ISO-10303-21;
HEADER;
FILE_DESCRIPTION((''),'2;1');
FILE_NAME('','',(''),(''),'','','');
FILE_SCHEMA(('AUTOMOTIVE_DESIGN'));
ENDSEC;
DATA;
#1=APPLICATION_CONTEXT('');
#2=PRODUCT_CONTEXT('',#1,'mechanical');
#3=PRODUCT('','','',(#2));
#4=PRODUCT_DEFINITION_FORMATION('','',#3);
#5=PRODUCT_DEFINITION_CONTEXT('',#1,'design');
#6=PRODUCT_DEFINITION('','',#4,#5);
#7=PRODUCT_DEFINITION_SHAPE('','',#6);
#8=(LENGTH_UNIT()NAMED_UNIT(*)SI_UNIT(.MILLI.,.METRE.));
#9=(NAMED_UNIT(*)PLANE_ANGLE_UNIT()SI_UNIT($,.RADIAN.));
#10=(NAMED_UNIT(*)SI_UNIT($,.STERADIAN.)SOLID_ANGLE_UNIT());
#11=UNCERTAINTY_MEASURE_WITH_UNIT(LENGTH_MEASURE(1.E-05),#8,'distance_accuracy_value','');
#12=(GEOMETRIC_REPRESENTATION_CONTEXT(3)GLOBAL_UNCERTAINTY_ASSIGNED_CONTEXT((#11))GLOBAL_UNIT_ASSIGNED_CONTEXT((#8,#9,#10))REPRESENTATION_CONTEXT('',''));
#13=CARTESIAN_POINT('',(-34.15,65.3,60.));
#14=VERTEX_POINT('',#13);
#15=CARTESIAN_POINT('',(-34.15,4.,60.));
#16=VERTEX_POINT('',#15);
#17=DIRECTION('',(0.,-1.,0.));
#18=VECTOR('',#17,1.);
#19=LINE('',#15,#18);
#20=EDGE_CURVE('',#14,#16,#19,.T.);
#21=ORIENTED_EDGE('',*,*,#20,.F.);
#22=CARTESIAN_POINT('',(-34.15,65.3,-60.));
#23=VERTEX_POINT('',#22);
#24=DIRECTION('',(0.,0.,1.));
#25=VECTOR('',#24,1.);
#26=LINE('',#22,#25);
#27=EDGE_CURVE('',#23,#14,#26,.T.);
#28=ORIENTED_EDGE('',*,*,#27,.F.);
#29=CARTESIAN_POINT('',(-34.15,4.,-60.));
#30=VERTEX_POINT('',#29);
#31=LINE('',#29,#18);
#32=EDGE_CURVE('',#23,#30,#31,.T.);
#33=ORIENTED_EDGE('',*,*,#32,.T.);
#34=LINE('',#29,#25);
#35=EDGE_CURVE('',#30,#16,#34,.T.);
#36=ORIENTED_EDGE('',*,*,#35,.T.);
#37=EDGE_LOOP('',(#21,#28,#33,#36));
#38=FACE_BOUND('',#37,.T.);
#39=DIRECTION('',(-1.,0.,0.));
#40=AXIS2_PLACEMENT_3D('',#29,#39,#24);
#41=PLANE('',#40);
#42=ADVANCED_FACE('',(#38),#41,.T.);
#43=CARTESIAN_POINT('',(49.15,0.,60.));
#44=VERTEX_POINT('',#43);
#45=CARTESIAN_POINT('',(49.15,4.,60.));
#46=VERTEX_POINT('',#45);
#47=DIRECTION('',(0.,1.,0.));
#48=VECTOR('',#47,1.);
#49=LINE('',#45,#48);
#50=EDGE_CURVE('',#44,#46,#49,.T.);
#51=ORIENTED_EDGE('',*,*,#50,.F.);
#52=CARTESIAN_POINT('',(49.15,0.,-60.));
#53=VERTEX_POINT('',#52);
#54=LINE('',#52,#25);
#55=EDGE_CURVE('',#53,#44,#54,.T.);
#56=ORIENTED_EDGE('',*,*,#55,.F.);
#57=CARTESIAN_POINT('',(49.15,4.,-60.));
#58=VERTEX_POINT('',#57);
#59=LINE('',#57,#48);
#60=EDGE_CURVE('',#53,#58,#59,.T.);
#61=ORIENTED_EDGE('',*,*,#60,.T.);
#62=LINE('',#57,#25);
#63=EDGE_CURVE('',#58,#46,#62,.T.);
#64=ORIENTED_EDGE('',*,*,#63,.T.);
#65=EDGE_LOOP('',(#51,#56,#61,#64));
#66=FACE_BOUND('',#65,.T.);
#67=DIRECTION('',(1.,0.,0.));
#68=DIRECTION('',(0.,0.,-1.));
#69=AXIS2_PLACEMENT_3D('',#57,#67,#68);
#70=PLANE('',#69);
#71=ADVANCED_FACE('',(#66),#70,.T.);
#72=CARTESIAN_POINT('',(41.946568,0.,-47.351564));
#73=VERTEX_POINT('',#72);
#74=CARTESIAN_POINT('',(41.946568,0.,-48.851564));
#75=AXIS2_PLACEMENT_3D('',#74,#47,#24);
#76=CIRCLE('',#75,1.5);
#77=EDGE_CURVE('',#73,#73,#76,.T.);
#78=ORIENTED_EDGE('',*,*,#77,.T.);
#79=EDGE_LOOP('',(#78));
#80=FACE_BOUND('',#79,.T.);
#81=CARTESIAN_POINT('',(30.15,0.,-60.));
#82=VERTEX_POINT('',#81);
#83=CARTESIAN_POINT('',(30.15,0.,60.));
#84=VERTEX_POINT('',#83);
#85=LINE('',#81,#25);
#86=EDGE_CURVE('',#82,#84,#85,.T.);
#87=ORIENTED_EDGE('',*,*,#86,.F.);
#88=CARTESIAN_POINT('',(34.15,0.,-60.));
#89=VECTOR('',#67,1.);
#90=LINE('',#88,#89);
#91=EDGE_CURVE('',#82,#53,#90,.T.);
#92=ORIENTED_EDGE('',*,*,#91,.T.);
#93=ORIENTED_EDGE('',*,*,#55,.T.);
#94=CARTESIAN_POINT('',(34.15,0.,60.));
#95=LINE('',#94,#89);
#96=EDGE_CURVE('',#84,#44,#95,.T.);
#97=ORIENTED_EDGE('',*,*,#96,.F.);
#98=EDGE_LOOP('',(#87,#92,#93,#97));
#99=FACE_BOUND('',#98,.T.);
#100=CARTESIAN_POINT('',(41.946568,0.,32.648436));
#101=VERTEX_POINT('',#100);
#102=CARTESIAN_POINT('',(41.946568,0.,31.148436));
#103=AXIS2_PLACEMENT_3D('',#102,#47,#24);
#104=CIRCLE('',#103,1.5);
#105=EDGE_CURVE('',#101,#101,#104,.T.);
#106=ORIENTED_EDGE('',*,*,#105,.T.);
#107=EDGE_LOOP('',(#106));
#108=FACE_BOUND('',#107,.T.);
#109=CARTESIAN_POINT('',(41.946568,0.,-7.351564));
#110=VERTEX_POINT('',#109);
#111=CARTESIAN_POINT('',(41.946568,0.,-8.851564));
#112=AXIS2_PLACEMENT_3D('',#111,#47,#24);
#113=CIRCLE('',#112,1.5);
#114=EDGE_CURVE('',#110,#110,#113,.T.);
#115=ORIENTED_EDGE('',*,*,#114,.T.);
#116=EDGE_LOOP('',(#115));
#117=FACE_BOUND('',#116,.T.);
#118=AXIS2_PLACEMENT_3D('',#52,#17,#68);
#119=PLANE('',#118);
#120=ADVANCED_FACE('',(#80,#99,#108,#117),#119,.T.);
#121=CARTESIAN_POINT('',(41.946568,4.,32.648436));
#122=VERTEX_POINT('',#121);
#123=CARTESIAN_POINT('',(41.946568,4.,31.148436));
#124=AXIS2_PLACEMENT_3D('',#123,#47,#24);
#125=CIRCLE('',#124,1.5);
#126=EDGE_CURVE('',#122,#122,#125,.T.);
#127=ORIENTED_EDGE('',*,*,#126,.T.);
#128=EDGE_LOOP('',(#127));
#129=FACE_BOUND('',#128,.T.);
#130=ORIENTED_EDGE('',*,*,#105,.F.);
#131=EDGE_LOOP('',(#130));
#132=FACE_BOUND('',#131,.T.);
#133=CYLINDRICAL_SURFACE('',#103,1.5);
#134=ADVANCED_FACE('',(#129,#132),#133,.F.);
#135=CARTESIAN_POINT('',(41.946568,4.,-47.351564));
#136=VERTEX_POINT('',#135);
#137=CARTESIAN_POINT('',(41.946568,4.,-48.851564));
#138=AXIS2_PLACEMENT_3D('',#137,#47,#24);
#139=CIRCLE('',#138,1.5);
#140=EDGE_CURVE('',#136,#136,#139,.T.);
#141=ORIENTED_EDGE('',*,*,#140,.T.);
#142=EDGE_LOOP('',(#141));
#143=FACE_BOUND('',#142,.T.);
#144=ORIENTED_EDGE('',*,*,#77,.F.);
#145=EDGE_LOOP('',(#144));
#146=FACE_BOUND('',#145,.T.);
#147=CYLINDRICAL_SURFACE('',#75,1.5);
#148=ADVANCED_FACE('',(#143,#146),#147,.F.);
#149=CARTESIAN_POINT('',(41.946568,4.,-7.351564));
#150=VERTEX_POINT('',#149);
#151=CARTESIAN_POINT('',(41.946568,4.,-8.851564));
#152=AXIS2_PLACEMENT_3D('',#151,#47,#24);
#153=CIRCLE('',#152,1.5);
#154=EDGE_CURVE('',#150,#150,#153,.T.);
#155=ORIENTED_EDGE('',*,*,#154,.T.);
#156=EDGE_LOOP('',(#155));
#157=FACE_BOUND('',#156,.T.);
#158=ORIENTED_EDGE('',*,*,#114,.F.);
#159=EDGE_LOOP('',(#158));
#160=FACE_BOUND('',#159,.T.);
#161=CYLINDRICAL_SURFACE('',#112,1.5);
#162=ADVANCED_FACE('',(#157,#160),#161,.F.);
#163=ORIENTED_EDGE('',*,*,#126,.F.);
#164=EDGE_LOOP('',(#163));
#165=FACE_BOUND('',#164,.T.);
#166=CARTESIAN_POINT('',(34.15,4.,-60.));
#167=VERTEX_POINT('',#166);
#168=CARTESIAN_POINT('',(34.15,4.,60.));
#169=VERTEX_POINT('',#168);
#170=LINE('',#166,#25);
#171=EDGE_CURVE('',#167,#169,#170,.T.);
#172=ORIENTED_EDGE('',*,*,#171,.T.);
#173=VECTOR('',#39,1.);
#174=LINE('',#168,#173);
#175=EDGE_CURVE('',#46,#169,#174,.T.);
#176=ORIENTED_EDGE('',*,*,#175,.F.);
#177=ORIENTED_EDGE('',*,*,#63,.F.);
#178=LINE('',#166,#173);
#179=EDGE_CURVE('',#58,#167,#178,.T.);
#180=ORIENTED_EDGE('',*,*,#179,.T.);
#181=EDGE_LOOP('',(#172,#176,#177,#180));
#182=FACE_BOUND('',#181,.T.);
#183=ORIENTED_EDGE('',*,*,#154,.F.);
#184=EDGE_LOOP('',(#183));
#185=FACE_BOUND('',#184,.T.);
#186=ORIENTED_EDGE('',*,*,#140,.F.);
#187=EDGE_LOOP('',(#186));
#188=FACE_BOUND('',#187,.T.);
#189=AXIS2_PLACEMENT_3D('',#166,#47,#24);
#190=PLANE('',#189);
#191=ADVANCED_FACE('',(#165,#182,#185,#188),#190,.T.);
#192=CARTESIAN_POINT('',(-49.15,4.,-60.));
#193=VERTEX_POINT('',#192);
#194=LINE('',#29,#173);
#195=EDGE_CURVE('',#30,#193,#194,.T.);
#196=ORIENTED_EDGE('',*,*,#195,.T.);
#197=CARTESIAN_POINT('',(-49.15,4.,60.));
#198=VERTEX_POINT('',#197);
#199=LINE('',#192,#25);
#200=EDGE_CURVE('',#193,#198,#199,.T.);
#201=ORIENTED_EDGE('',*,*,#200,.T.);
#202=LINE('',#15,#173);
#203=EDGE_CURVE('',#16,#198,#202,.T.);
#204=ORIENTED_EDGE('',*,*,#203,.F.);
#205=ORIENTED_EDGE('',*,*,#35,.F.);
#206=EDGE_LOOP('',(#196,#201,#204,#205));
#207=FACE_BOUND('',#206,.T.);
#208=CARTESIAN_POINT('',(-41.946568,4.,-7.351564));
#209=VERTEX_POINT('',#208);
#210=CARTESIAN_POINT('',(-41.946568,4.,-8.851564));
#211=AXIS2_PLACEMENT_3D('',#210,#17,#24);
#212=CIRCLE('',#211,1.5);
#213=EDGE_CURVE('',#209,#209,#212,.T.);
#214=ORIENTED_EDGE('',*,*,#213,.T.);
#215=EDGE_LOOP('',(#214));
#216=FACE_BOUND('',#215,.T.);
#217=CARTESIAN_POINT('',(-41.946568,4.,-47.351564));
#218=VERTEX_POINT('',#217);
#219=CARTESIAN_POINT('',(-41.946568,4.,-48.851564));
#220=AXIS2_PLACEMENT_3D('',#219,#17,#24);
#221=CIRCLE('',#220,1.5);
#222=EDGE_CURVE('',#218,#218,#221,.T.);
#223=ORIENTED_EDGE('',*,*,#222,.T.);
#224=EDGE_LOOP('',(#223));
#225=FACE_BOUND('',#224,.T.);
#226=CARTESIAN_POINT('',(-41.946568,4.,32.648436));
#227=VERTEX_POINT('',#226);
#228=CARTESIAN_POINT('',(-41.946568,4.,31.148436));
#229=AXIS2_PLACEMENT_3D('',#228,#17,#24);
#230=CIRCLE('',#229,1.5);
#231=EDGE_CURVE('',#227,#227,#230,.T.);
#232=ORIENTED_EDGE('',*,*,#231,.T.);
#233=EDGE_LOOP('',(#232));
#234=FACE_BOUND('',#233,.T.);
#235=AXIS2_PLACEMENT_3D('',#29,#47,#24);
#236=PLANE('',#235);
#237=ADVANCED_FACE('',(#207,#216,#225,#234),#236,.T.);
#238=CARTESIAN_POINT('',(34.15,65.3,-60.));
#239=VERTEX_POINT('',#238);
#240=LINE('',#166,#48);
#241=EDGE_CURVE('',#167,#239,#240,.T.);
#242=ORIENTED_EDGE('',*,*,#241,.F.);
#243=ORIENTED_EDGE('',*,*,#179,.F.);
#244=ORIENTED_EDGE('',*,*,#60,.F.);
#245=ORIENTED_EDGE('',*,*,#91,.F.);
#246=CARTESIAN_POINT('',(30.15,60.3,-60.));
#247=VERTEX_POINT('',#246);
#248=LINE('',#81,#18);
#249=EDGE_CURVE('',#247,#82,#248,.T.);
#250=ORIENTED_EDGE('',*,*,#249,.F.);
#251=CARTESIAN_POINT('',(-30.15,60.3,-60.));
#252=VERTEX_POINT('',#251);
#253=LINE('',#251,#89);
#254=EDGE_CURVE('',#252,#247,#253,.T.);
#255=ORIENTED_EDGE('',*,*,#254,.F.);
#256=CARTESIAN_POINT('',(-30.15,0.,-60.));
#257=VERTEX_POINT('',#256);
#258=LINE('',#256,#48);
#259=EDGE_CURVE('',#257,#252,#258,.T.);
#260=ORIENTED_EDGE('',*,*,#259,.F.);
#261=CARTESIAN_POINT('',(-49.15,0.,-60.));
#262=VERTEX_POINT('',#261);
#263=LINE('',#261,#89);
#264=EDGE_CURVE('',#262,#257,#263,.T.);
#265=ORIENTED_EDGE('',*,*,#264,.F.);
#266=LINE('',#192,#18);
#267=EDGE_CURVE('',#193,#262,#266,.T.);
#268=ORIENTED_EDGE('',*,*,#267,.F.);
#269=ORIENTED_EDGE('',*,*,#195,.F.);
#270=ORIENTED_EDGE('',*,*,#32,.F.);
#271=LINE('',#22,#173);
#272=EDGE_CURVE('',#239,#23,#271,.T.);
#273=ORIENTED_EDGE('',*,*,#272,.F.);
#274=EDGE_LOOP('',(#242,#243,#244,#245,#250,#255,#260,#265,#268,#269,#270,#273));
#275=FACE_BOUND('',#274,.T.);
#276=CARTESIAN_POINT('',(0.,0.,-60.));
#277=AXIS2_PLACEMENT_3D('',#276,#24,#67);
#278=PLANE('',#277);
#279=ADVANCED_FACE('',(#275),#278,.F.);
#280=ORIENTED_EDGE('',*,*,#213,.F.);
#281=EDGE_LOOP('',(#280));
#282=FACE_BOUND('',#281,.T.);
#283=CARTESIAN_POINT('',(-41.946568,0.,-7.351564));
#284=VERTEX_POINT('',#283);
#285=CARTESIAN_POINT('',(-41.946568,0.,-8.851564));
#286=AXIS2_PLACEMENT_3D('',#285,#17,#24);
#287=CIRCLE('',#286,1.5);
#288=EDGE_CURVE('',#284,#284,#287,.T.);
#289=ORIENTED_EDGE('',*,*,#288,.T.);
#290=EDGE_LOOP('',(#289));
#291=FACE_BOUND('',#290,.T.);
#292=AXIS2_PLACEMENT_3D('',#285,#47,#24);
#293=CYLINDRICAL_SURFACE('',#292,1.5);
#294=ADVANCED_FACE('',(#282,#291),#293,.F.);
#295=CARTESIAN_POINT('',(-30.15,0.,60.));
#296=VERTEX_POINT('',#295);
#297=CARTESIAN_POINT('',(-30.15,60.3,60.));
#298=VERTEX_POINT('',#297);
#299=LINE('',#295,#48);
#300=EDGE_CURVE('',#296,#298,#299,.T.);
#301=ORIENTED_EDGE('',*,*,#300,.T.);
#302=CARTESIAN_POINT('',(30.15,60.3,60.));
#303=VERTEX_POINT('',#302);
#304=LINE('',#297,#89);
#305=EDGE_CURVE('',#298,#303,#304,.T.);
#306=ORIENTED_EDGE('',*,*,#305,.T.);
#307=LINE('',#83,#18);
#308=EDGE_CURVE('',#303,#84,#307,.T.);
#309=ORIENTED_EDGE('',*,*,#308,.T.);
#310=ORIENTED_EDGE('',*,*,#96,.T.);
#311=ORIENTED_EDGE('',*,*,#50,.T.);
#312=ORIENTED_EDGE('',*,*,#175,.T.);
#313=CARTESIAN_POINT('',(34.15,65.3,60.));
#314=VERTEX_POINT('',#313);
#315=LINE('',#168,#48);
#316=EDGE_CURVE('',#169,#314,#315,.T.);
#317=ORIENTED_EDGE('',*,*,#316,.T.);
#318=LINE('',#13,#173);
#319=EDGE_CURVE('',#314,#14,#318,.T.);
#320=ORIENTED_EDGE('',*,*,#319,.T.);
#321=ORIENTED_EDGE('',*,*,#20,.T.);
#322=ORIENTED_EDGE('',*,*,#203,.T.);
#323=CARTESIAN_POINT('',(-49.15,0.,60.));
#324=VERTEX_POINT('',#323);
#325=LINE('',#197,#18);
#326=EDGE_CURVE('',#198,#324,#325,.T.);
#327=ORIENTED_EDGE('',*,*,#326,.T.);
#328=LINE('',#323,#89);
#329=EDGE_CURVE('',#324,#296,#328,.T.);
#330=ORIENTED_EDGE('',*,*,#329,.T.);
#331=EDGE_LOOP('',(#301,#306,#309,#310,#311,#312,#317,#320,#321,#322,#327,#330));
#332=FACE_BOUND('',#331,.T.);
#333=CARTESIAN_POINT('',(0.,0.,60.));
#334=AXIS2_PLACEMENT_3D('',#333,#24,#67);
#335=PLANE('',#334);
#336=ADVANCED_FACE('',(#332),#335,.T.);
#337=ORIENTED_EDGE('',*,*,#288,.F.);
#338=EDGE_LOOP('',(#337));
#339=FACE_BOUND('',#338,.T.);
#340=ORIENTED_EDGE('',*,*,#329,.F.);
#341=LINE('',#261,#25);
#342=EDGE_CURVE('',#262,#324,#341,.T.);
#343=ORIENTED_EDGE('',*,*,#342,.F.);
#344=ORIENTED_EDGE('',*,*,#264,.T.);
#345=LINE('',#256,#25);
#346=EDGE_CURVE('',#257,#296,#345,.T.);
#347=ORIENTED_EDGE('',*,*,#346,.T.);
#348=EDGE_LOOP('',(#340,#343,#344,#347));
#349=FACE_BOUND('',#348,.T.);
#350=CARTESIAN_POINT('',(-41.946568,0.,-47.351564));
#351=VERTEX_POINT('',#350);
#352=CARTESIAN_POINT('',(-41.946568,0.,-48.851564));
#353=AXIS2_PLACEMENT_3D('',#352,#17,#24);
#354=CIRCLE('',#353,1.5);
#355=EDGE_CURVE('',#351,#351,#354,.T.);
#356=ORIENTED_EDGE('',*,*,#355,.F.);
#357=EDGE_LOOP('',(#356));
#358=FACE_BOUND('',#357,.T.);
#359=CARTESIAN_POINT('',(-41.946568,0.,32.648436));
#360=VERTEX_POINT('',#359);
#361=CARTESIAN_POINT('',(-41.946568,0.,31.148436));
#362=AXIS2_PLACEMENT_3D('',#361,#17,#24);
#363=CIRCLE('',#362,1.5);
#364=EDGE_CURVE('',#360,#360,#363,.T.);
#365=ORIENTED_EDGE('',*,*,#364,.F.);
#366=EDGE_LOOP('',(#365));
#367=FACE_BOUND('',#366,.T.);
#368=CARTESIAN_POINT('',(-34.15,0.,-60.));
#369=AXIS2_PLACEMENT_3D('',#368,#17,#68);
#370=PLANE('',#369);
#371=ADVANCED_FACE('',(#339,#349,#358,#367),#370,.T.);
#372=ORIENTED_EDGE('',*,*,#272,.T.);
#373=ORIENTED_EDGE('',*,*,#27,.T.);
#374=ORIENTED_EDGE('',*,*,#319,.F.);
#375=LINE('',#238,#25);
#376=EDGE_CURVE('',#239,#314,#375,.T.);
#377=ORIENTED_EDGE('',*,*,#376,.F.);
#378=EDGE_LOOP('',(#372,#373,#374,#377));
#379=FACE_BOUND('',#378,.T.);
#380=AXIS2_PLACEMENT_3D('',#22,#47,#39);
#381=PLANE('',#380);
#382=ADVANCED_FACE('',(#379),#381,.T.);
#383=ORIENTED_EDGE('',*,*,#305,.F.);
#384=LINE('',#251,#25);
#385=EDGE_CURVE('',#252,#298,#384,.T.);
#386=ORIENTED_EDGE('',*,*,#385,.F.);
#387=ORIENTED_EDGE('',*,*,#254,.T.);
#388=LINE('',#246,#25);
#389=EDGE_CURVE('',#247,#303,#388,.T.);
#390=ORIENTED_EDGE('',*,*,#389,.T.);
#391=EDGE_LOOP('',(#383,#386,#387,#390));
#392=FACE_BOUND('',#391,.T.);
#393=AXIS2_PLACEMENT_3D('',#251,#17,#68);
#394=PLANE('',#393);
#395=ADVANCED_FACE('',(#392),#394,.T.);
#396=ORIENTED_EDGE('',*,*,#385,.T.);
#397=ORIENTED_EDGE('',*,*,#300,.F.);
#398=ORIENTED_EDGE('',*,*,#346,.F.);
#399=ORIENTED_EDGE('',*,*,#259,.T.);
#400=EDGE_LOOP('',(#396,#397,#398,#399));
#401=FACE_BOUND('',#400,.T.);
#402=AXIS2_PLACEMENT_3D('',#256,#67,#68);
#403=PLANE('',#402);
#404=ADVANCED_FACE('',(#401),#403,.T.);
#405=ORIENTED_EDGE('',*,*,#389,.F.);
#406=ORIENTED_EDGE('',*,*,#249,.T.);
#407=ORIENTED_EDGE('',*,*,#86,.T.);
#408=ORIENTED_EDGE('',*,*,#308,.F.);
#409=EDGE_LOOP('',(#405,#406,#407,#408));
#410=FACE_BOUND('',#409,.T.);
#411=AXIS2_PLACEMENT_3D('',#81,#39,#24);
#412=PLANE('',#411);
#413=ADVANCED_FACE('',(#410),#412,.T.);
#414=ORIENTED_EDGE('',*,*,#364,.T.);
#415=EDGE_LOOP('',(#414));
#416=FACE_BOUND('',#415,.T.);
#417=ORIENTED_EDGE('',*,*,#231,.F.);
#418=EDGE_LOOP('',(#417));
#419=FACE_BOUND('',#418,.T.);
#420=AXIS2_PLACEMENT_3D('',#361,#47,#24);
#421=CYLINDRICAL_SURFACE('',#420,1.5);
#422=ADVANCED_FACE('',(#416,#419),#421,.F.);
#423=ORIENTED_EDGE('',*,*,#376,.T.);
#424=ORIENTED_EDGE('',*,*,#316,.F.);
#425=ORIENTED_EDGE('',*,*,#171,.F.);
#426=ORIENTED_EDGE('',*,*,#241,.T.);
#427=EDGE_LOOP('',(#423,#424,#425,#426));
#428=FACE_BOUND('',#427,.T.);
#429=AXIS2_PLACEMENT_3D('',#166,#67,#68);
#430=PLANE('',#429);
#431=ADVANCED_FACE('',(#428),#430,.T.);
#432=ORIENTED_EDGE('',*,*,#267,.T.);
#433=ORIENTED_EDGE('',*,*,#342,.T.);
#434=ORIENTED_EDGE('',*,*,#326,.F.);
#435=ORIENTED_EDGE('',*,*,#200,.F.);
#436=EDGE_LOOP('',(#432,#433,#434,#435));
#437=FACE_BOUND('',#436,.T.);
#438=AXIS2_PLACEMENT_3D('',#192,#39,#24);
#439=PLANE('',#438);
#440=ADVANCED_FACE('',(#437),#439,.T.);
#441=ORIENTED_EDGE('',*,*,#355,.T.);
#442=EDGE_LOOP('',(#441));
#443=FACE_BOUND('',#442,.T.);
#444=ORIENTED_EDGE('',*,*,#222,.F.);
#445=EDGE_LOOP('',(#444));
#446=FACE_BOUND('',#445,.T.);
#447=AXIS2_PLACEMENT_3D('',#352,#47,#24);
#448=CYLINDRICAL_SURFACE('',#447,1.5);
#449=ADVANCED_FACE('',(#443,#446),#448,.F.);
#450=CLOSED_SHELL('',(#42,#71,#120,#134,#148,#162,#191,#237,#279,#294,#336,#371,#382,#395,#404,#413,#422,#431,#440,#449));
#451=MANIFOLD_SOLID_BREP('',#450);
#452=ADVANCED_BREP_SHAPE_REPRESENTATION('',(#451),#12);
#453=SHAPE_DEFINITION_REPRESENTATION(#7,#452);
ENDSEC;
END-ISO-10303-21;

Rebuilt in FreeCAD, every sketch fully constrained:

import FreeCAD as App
import Part
import Sketcher
from FreeCAD import Vector
Q = App.Units.Quantity


def add_polygon(sketch, points):
    """Adds a closed chain of lines whose ends are joined by coincident constraints."""
    first, n = sketch.GeometryCount, len(points)
    for a, b in zip(points, points[1:] + points[:1]):
        sketch.addGeometry(Part.LineSegment(App.Vector(*a, 0), App.Vector(*b, 0)), False)
    for i in range(n):
        sketch.addConstraint(Sketcher.Constraint("Coincident", first + i, 2, first + (i + 1) % n, 1))

doc = App.newDocument("Part")
body = doc.addObject("PartDesign::Body", "Body")

# Sketch on XY plane
sketch1 = body.newObject("Sketcher::SketchObject", "Sketch")
sketch1.AttachmentSupport = (doc.getObject("XY_Plane"), [""])
sketch1.MapMode = "FlatFace"
add_polygon(sketch1, [(-34.1, 65.3), (-34.1, 4), (-49.1, 4), (-49.1, 0), (-30.1, 0), (-30.1, 60.3), (30.1, 60.3), (30.1, 0), (49.1, 0), (49.1, 4), (34.1, 4), (34.1, 65.3)])  # lines 0-11
sketch1.addConstraint([
    Sketcher.Constraint("Vertical", 0),
    Sketcher.Constraint("Horizontal", 1),
    Sketcher.Constraint("Vertical", 2),
    Sketcher.Constraint("Horizontal", 3),
    Sketcher.Constraint("Vertical", 4),
    Sketcher.Constraint("Horizontal", 5),
    Sketcher.Constraint("Vertical", 6),
    Sketcher.Constraint("Horizontal", 7),
    Sketcher.Constraint("Vertical", 8),
    Sketcher.Constraint("Horizontal", 9),
    Sketcher.Constraint("Vertical", 10),
    Sketcher.Constraint("Horizontal", 11),
    Sketcher.Constraint("Symmetric", 3, 2, 6, 2, -1, 1),
    Sketcher.Constraint("Symmetric", 2, 2, 7, 2, -2),
    Sketcher.Constraint("Symmetric", 0, 2, 9, 2, -2),
    Sketcher.Constraint("Equal", 5, 4),
    Sketcher.Constraint("DistanceX", 1, 2, 1, 1, Q("15 mm")),
    Sketcher.Constraint("DistanceX", 3, 1, 3, 2, Q("19 mm")),
    Sketcher.Constraint("DistanceY", 2, 2, 2, 1, Q("4 mm")),
    Sketcher.Constraint("DistanceX", 5, 1, 5, 2, Q("60.3 mm")),
    Sketcher.Constraint("DistanceY", 0, 2, 0, 1, Q("61.3 mm")),
])
pad1 = body.newObject("PartDesign::Pad", "Pad")
pad1.Profile = sketch1
pad1.Type = "TwoLengths"
pad1.Length = 60
pad1.Length2 = 60

# Sketch on XZ plane
sketch2 = body.newObject("Sketcher::SketchObject", "Sketch001")
sketch2.AttachmentSupport = (doc.getObject("XZ_Plane"), [""])
sketch2.MapMode = "FlatFace"
sketch2.AttachmentOffset = App.Placement(Vector(0, 0, -4), App.Rotation())
sketch2.addGeometry([
    Part.Circle(Vector(41.9, 31.1, 0), Vector(0, 0, 1), 1.5),
    Part.Circle(Vector(41.9, -8.9, 0), Vector(0, 0, 1), 1.5),
    Part.Circle(Vector(41.9, -48.9, 0), Vector(0, 0, 1), 1.5),
], False)
sketch2.addConstraint([
    Sketcher.Constraint("Equal", 0, 1),
    Sketcher.Constraint("Equal", 1, 2),
    Sketcher.Constraint("Vertical", 0, 3, 1, 3),
    Sketcher.Constraint("Vertical", 1, 3, 2, 3),
    Sketcher.Constraint("Diameter", 0, Q("3 mm")),
    Sketcher.Constraint("DistanceY", 1, 3, 0, 3, Q("40 mm")),
    Sketcher.Constraint("DistanceY", 2, 3, 1, 3, Q("40 mm")),
    Sketcher.Constraint("DistanceX", -1, 1, 0, 3, Q("41.946568 mm")),
    Sketcher.Constraint("DistanceY", -1, 1, 0, 3, Q("31.148436 mm")),
])
pocket1 = body.newObject("PartDesign::Pocket", "Pocket")
pocket1.Profile = sketch2
pocket1.Type = "ThroughAll"
pocket1.Reversed = True
doc.recompute()

mirrored = body.newObject("PartDesign::Mirrored", "Mirrored")
mirrored.Originals = [pocket1]
mirrored.MirrorPlane = (doc.getObject("YZ_Plane"), [""])
body.Tip = mirrored

doc.recompute()
